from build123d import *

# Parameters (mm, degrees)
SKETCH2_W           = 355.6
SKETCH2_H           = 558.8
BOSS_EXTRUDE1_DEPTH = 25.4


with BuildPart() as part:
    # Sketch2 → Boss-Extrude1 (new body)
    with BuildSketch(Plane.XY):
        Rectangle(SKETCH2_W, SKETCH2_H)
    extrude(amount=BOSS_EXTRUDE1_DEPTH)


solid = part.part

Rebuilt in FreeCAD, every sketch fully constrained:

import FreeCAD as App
import Part
import Sketcher

V = App.Vector
Q = App.Units.Quantity

doc = App.newDocument("Part")
body = doc.addObject("PartDesign::Body", "Body")

sketch1 = body.newObject("Sketcher::SketchObject", "Sketch")
sketch1.AttachmentSupport = (doc.getObject("XY_Plane"), [""])
sketch1.MapMode = "FlatFace"
sketch1.addGeometry(Part.LineSegment(V(-178, 279, 0), V(-178, -279, 0)), False)
sketch1.addGeometry(Part.LineSegment(V(-178, -279, 0), V(178, -279, 0)), False)
sketch1.addGeometry(Part.LineSegment(V(178, -279, 0), V(178, 279, 0)), False)
sketch1.addGeometry(Part.LineSegment(V(178, 279, 0), V(-178, 279, 0)), False)
sketch1.addConstraint(Sketcher.Constraint("Coincident", 0, 2, 1, 1))
sketch1.addConstraint(Sketcher.Constraint("Coincident", 1, 2, 2, 1))
sketch1.addConstraint(Sketcher.Constraint("Coincident", 2, 2, 3, 1))
sketch1.addConstraint(Sketcher.Constraint("Coincident", 3, 2, 0, 1))
sketch1.addConstraint(Sketcher.Constraint("Vertical", 0))
sketch1.addConstraint(Sketcher.Constraint("Horizontal", 1))
sketch1.addConstraint(Sketcher.Constraint("Vertical", 2))
sketch1.addConstraint(Sketcher.Constraint("Horizontal", 3))
sketch1.addConstraint(Sketcher.Constraint("Symmetric", 0, 2, 2, 2, -1, 1))
sketch1.addConstraint(Sketcher.Constraint("DistanceX", 1, 1, 1, 2, Q("14 in")))
sketch1.addConstraint(Sketcher.Constraint("DistanceY", 0, 2, 0, 1, Q("22 in")))
pad1 = body.newObject("PartDesign::Pad", "Pad")
pad1.Profile = sketch1
pad1.Length = Q("1 in")

doc.recompute()
